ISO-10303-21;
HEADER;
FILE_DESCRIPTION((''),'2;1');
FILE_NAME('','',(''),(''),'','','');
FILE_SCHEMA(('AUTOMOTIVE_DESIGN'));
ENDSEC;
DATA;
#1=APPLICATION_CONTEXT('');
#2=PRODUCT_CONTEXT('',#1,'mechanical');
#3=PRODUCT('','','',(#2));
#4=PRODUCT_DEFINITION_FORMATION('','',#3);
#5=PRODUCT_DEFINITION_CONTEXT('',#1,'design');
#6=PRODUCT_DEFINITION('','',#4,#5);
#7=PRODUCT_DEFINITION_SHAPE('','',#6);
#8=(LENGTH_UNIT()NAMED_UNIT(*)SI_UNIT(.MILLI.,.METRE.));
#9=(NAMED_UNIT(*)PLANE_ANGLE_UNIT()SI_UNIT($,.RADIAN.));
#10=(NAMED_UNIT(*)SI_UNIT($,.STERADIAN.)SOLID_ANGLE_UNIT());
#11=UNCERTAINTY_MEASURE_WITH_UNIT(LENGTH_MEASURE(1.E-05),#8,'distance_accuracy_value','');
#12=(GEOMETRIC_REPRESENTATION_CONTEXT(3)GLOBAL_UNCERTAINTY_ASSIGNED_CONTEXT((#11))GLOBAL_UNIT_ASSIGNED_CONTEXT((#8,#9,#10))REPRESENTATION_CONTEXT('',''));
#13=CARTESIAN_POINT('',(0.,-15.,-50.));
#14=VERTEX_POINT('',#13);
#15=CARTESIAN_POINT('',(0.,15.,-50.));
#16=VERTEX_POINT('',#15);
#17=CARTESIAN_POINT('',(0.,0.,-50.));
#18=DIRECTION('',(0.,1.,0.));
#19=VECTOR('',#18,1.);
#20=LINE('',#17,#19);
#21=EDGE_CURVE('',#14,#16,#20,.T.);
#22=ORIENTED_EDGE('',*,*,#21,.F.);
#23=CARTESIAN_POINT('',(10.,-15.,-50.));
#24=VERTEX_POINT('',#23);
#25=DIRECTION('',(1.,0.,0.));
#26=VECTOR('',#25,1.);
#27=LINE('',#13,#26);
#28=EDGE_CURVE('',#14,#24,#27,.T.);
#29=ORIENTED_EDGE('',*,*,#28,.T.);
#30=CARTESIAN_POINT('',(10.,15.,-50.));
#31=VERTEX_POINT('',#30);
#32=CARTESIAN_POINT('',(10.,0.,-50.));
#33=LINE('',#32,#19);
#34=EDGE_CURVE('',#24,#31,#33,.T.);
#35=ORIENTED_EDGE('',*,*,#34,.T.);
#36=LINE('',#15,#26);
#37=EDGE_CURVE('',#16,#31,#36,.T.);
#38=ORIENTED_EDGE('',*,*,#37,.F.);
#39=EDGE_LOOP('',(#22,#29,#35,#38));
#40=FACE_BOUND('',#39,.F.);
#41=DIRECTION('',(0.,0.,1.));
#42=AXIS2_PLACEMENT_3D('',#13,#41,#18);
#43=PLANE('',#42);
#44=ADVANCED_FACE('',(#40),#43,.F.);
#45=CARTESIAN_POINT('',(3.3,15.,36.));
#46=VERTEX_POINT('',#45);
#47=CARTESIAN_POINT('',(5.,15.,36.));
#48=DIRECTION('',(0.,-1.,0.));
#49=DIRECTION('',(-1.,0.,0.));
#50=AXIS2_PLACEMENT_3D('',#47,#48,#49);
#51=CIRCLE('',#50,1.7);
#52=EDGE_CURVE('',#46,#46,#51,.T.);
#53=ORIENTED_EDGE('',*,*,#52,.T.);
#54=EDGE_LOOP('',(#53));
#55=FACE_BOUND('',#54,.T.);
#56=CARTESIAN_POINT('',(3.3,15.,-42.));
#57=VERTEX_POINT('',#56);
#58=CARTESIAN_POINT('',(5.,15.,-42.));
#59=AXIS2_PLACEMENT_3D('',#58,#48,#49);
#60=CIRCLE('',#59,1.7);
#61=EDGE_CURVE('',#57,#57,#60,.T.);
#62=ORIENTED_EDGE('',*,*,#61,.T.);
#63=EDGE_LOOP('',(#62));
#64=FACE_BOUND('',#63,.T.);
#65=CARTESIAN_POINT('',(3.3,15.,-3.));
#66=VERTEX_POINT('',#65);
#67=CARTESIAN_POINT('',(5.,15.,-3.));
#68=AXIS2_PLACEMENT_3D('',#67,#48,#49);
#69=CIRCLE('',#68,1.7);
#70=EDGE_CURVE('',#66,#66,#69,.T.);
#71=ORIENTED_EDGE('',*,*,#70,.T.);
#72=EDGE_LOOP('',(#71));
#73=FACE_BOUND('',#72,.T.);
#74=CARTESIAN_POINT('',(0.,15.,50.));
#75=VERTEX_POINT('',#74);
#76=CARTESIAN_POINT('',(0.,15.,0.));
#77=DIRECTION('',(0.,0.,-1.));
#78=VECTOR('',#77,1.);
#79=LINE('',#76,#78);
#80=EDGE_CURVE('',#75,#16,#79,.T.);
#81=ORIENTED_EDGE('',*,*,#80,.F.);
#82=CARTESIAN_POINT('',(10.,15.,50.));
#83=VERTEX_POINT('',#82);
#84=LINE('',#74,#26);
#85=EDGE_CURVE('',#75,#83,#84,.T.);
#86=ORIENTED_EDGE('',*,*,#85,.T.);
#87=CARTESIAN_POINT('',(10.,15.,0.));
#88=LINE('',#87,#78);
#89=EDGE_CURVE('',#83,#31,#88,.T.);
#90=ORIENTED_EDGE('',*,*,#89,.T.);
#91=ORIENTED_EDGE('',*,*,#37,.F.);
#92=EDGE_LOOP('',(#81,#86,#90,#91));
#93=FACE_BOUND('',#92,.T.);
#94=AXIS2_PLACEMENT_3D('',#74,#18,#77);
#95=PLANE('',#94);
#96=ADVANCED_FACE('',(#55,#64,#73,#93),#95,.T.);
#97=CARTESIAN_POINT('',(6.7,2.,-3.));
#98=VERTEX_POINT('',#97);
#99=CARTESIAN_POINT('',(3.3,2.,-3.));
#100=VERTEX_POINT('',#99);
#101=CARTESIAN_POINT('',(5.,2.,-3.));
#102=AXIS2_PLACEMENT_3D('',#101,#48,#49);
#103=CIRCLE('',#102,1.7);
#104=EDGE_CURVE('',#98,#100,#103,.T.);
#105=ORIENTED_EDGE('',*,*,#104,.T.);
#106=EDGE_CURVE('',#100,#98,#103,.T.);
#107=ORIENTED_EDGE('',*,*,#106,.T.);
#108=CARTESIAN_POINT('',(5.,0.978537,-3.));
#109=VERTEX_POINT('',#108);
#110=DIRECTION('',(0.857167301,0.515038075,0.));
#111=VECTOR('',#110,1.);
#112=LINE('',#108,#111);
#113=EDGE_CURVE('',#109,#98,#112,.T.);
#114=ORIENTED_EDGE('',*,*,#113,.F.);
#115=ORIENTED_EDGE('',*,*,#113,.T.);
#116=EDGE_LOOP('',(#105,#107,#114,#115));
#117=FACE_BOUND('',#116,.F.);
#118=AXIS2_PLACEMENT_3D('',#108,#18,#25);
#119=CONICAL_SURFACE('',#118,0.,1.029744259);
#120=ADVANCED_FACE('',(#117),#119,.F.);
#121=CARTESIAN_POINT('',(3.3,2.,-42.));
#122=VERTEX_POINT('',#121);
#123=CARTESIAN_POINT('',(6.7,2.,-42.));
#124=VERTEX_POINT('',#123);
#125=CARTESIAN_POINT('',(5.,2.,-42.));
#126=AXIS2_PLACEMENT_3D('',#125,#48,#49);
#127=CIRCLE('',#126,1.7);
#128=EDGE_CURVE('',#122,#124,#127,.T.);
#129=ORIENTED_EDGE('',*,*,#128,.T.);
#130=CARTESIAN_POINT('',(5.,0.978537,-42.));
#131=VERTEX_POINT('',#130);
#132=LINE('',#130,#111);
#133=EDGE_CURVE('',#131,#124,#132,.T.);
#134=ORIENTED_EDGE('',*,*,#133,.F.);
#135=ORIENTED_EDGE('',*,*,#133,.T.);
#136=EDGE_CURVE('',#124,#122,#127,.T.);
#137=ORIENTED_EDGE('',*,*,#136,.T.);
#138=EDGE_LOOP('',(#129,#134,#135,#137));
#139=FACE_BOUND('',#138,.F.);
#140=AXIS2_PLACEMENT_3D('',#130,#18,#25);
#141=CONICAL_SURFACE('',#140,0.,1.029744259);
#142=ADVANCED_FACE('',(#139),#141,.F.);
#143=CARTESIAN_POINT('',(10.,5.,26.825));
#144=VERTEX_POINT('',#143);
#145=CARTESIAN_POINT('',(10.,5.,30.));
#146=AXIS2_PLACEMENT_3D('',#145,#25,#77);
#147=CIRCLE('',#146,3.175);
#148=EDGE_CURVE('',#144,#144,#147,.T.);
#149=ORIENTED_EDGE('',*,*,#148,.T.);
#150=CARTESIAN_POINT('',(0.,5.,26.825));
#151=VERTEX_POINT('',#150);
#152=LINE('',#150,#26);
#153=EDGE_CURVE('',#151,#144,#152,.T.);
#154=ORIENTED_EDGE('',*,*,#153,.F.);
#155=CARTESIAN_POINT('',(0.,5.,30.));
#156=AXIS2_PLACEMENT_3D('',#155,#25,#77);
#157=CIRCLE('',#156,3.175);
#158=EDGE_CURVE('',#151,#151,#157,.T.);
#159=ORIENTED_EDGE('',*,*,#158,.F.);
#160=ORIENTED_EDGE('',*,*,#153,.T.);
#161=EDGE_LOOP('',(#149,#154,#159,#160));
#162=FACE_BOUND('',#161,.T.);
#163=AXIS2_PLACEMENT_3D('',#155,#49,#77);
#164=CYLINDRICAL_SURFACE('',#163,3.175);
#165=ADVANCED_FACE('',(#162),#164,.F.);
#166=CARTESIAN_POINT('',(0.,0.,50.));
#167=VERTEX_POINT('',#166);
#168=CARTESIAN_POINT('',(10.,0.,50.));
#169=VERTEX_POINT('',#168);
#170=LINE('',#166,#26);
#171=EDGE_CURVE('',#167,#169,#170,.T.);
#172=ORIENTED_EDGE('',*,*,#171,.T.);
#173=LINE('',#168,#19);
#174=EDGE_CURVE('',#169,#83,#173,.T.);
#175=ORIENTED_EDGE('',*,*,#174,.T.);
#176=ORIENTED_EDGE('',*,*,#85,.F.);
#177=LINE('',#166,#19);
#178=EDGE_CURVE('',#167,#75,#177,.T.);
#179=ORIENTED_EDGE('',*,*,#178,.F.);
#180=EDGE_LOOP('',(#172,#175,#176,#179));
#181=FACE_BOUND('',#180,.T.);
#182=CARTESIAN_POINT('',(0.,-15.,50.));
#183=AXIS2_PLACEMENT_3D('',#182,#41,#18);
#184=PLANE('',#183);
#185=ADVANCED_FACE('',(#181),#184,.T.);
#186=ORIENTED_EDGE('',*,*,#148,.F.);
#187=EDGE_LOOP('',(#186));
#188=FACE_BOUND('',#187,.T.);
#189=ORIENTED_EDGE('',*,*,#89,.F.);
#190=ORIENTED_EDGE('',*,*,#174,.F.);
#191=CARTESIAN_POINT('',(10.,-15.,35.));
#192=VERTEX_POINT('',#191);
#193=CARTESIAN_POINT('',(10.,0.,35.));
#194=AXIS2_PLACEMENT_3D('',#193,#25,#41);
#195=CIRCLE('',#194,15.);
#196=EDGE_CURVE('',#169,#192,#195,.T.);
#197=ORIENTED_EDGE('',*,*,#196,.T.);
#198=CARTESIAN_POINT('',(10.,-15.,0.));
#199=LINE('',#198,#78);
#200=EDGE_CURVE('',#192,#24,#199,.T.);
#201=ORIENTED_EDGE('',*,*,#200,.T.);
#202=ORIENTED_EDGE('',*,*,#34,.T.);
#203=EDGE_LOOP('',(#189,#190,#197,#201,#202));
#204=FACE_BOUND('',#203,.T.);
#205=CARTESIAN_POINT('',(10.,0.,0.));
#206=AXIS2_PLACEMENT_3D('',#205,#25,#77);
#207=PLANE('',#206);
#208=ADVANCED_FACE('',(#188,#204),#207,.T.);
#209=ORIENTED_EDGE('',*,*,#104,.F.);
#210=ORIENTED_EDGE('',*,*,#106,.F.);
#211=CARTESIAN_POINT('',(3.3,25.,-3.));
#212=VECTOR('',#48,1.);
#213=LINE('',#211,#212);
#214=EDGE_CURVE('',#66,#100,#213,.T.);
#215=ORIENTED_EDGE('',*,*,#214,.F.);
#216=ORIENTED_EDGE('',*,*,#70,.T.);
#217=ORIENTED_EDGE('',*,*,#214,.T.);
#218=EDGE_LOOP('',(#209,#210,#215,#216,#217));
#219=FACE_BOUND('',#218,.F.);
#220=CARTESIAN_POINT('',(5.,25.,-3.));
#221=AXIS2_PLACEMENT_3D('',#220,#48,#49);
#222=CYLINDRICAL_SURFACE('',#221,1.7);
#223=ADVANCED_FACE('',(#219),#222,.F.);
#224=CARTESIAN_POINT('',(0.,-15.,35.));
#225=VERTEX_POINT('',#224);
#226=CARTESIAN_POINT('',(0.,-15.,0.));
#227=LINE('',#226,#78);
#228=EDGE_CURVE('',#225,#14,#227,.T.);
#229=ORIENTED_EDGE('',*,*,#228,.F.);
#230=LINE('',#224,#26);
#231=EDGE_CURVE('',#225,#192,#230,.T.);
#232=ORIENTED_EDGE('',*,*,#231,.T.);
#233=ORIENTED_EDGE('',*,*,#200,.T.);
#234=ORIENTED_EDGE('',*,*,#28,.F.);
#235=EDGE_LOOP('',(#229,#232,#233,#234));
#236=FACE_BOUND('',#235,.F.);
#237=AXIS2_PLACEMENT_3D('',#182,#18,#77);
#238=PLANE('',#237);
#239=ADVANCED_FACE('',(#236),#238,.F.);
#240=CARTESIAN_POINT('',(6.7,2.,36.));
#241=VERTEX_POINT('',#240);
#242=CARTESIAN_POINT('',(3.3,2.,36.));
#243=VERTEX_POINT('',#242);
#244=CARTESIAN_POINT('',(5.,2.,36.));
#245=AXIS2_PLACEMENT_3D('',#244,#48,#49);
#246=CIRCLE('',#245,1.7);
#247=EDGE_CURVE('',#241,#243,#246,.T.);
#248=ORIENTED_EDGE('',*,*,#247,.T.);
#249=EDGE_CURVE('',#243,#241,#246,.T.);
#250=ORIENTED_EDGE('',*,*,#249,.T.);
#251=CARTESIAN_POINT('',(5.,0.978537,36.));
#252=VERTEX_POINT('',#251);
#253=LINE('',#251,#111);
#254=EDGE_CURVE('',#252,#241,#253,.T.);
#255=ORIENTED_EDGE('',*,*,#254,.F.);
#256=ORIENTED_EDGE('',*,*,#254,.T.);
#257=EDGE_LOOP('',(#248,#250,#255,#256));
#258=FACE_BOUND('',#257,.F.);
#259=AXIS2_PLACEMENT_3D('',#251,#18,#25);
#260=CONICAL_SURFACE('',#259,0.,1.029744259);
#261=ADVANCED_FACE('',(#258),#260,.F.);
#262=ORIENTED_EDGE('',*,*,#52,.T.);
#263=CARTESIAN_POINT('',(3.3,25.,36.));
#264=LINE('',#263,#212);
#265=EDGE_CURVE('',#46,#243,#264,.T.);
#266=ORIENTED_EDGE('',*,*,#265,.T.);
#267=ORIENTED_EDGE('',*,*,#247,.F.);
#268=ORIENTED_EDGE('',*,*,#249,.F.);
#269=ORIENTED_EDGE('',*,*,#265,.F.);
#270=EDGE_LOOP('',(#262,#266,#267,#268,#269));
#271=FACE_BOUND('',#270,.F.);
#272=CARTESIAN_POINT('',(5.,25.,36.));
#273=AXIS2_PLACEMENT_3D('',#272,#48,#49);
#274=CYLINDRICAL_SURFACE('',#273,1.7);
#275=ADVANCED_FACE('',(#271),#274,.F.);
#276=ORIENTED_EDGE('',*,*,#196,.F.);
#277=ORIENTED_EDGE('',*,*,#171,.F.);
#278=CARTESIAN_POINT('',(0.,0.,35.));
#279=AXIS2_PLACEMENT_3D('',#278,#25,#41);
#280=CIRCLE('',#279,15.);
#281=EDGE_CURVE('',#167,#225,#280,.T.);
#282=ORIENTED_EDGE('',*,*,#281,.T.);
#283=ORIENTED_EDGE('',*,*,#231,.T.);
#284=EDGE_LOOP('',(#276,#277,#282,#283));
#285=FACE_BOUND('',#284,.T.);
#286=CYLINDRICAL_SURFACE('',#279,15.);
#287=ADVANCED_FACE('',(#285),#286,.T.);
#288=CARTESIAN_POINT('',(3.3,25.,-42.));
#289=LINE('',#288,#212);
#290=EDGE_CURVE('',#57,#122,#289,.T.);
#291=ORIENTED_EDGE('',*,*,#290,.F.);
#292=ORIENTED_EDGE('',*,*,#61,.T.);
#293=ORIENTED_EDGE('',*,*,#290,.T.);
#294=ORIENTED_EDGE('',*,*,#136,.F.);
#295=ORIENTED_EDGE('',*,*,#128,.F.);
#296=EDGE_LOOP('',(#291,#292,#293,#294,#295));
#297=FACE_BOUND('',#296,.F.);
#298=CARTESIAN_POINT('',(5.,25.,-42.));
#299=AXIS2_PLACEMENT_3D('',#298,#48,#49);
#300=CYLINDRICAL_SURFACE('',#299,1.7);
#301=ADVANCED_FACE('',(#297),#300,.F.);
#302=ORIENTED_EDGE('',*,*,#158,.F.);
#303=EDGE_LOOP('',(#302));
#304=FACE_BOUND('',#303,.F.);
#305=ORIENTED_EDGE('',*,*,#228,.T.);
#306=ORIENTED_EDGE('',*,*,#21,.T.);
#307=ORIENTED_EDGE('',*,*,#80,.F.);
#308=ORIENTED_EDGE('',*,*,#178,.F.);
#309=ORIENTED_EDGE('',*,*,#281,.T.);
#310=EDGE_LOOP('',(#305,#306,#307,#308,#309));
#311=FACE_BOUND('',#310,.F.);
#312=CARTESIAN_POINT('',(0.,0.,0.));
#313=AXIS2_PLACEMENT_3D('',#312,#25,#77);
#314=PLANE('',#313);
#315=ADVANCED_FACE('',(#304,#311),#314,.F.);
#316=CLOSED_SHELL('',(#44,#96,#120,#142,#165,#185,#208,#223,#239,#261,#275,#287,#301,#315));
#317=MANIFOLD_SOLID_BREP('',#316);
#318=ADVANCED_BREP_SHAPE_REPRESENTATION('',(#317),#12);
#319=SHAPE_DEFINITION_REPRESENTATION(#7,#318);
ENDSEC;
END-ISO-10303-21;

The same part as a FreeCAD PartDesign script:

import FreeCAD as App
import Part
import Sketcher
from FreeCAD import Vector
Q = App.Units.Quantity


def edges_at(feature, points):
    """Names of the edges that pass closest to the given points."""
    edges = feature.Shape.Edges
    near = lambda p: min(range(len(edges)), key=lambda i: edges[i].distToShape(Part.Vertex(*p))[0])
    return sorted({f"Edge{near(p) + 1}" for p in points})

doc = App.newDocument("Part")
body = doc.addObject("PartDesign::Body", "Body")

sketch1 = body.newObject("Sketcher::SketchObject", "Sketch")
sketch1.AttachmentSupport = (doc.getObject("YZ_Plane"), [""])
sketch1.MapMode = "FlatFace"
sketch1.addGeometry(Part.LineSegment(Vector(15, 50, 0), Vector(-15, 50, 0)), False)
sketch1.addGeometry(Part.LineSegment(Vector(-15, 50, 0), Vector(-15, -50, 0)), False)
sketch1.addGeometry(Part.LineSegment(Vector(-15, -50, 0), Vector(15, -50, 0)), False)
sketch1.addGeometry(Part.LineSegment(Vector(15, -50, 0), Vector(15, 50, 0)), False)
sketch1.addGeometry(Part.Circle(Vector(5, 30, 0), Vector(0, 0, 1), 3.2), False)
sketch1.addConstraint(Sketcher.Constraint("Coincident", 0, 2, 1, 1))
sketch1.addConstraint(Sketcher.Constraint("Coincident", 1, 2, 2, 1))
sketch1.addConstraint(Sketcher.Constraint("Coincident", 2, 2, 3, 1))
sketch1.addConstraint(Sketcher.Constraint("Coincident", 3, 2, 0, 1))
sketch1.addConstraint(Sketcher.Constraint("Horizontal", 0))
sketch1.addConstraint(Sketcher.Constraint("Vertical", 1))
sketch1.addConstraint(Sketcher.Constraint("Horizontal", 2))
sketch1.addConstraint(Sketcher.Constraint("Vertical", 3))
sketch1.addConstraint(Sketcher.Constraint("Symmetric", 0, 2, 2, 2, -1, 1))
sketch1.addConstraint(Sketcher.Constraint("Diameter", 4, Q("6.35 mm")))
sketch1.addConstraint(Sketcher.Constraint("DistanceX", 0, 2, 0, 1, Q("30 mm")))
sketch1.addConstraint(Sketcher.Constraint("DistanceY", 1, 2, 1, 1, Q("100 mm")))
sketch1.addConstraint(Sketcher.Constraint("DistanceX", -1, 1, 4, 3, Q("5 mm")))
sketch1.addConstraint(Sketcher.Constraint("DistanceY", -1, 1, 4, 3, Q("30 mm")))
pad1 = body.newObject("PartDesign::Pad", "Pad")
pad1.Profile = sketch1
pad1.Length = 10
doc.recompute()

fillet = body.newObject("PartDesign::Fillet", "Fillet")
fillet.Base = (pad1, edges_at(pad1, [(5, -15, 50)]))
fillet.Radius = 15

sketch2 = body.newObject("Sketcher::SketchObject", "Sketch001")
sketch2.AttachmentSupport = (doc.getObject("XZ_Plane"), [""])
sketch2.MapMode = "FlatFace"
sketch2.AttachmentOffset = App.Placement(Vector(0, 0, -25), App.Rotation())
sketch2.addGeometry(Part.Circle(Vector(5, -42, 0), Vector(0, 0, 1), 1.7), False)
sketch2.addGeometry(Part.Circle(Vector(5, 36, 0), Vector(0, 0, 1), 1.7), False)
sketch2.addGeometry(Part.Circle(Vector(-105, -42, 0), Vector(0, 0, 1), 1.7), False)
sketch2.addGeometry(Part.Circle(Vector(-105, 42, 0), Vector(0, 0, 1), 1.7), False)
sketch2.addGeometry(Part.Circle(Vector(-105, 0, 0), Vector(0, 0, 1), 1.7), False)
sketch2.addGeometry(Part.Circle(Vector(5, -3, 0), Vector(0, 0, 1), 1.7), False)
sketch2.addConstraint(Sketcher.Constraint("Equal", 0, 1))
sketch2.addConstraint(Sketcher.Constraint("Equal", 1, 2))
sketch2.addConstraint(Sketcher.Constraint("Equal", 2, 3))
sketch2.addConstraint(Sketcher.Constraint("Equal", 3, 4))
sketch2.addConstraint(Sketcher.Constraint("Equal", 4, 5))
sketch2.addConstraint(Sketcher.Constraint("Symmetric", 2, 3, 3, 3, -1))
sketch2.addConstraint(Sketcher.Constraint("PointOnObject", 4, 3, -1))
sketch2.addConstraint(Sketcher.Constraint("Horizontal", 0, 3, 2, 3))
sketch2.addConstraint(Sketcher.Constraint("Vertical", 0, 3, 1, 3))
sketch2.addConstraint(Sketcher.Constraint("Vertical", 3, 3, 4, 3))
sketch2.addConstraint(Sketcher.Constraint("Vertical", 1, 3, 5, 3))
sketch2.addConstraint(Sketcher.Constraint("Diameter", 0, Q("3.4 mm")))
sketch2.addConstraint(Sketcher.Constraint("DistanceX", -1, 1, 0, 3, Q("5 mm")))
sketch2.addConstraint(Sketcher.Constraint("DistanceY", 0, 3, -1, 1, Q("42 mm")))
sketch2.addConstraint(Sketcher.Constraint("DistanceY", -1, 1, 1, 3, Q("36 mm")))
sketch2.addConstraint(Sketcher.Constraint("DistanceX", 2, 3, -1, 1, Q("105 mm")))
sketch2.addConstraint(Sketcher.Constraint("DistanceY", 5, 3, -1, 1, Q("3 mm")))
doc.recompute()
hole = body.newObject("PartDesign::Hole", "Hole")
hole.Profile = sketch2
hole.ThreadType = "None"
hole.Diameter = 3.4
hole.DepthType = "Dimension"
hole.Depth = 23
hole.DrillPoint = "Angled"
hole.DrillPointAngle = 118
hole.HoleCutType = "Counterbore"
hole.HoleCutDiameter = 6.5
hole.HoleCutDepth = 3
hole.Reversed = True

doc.recompute()
